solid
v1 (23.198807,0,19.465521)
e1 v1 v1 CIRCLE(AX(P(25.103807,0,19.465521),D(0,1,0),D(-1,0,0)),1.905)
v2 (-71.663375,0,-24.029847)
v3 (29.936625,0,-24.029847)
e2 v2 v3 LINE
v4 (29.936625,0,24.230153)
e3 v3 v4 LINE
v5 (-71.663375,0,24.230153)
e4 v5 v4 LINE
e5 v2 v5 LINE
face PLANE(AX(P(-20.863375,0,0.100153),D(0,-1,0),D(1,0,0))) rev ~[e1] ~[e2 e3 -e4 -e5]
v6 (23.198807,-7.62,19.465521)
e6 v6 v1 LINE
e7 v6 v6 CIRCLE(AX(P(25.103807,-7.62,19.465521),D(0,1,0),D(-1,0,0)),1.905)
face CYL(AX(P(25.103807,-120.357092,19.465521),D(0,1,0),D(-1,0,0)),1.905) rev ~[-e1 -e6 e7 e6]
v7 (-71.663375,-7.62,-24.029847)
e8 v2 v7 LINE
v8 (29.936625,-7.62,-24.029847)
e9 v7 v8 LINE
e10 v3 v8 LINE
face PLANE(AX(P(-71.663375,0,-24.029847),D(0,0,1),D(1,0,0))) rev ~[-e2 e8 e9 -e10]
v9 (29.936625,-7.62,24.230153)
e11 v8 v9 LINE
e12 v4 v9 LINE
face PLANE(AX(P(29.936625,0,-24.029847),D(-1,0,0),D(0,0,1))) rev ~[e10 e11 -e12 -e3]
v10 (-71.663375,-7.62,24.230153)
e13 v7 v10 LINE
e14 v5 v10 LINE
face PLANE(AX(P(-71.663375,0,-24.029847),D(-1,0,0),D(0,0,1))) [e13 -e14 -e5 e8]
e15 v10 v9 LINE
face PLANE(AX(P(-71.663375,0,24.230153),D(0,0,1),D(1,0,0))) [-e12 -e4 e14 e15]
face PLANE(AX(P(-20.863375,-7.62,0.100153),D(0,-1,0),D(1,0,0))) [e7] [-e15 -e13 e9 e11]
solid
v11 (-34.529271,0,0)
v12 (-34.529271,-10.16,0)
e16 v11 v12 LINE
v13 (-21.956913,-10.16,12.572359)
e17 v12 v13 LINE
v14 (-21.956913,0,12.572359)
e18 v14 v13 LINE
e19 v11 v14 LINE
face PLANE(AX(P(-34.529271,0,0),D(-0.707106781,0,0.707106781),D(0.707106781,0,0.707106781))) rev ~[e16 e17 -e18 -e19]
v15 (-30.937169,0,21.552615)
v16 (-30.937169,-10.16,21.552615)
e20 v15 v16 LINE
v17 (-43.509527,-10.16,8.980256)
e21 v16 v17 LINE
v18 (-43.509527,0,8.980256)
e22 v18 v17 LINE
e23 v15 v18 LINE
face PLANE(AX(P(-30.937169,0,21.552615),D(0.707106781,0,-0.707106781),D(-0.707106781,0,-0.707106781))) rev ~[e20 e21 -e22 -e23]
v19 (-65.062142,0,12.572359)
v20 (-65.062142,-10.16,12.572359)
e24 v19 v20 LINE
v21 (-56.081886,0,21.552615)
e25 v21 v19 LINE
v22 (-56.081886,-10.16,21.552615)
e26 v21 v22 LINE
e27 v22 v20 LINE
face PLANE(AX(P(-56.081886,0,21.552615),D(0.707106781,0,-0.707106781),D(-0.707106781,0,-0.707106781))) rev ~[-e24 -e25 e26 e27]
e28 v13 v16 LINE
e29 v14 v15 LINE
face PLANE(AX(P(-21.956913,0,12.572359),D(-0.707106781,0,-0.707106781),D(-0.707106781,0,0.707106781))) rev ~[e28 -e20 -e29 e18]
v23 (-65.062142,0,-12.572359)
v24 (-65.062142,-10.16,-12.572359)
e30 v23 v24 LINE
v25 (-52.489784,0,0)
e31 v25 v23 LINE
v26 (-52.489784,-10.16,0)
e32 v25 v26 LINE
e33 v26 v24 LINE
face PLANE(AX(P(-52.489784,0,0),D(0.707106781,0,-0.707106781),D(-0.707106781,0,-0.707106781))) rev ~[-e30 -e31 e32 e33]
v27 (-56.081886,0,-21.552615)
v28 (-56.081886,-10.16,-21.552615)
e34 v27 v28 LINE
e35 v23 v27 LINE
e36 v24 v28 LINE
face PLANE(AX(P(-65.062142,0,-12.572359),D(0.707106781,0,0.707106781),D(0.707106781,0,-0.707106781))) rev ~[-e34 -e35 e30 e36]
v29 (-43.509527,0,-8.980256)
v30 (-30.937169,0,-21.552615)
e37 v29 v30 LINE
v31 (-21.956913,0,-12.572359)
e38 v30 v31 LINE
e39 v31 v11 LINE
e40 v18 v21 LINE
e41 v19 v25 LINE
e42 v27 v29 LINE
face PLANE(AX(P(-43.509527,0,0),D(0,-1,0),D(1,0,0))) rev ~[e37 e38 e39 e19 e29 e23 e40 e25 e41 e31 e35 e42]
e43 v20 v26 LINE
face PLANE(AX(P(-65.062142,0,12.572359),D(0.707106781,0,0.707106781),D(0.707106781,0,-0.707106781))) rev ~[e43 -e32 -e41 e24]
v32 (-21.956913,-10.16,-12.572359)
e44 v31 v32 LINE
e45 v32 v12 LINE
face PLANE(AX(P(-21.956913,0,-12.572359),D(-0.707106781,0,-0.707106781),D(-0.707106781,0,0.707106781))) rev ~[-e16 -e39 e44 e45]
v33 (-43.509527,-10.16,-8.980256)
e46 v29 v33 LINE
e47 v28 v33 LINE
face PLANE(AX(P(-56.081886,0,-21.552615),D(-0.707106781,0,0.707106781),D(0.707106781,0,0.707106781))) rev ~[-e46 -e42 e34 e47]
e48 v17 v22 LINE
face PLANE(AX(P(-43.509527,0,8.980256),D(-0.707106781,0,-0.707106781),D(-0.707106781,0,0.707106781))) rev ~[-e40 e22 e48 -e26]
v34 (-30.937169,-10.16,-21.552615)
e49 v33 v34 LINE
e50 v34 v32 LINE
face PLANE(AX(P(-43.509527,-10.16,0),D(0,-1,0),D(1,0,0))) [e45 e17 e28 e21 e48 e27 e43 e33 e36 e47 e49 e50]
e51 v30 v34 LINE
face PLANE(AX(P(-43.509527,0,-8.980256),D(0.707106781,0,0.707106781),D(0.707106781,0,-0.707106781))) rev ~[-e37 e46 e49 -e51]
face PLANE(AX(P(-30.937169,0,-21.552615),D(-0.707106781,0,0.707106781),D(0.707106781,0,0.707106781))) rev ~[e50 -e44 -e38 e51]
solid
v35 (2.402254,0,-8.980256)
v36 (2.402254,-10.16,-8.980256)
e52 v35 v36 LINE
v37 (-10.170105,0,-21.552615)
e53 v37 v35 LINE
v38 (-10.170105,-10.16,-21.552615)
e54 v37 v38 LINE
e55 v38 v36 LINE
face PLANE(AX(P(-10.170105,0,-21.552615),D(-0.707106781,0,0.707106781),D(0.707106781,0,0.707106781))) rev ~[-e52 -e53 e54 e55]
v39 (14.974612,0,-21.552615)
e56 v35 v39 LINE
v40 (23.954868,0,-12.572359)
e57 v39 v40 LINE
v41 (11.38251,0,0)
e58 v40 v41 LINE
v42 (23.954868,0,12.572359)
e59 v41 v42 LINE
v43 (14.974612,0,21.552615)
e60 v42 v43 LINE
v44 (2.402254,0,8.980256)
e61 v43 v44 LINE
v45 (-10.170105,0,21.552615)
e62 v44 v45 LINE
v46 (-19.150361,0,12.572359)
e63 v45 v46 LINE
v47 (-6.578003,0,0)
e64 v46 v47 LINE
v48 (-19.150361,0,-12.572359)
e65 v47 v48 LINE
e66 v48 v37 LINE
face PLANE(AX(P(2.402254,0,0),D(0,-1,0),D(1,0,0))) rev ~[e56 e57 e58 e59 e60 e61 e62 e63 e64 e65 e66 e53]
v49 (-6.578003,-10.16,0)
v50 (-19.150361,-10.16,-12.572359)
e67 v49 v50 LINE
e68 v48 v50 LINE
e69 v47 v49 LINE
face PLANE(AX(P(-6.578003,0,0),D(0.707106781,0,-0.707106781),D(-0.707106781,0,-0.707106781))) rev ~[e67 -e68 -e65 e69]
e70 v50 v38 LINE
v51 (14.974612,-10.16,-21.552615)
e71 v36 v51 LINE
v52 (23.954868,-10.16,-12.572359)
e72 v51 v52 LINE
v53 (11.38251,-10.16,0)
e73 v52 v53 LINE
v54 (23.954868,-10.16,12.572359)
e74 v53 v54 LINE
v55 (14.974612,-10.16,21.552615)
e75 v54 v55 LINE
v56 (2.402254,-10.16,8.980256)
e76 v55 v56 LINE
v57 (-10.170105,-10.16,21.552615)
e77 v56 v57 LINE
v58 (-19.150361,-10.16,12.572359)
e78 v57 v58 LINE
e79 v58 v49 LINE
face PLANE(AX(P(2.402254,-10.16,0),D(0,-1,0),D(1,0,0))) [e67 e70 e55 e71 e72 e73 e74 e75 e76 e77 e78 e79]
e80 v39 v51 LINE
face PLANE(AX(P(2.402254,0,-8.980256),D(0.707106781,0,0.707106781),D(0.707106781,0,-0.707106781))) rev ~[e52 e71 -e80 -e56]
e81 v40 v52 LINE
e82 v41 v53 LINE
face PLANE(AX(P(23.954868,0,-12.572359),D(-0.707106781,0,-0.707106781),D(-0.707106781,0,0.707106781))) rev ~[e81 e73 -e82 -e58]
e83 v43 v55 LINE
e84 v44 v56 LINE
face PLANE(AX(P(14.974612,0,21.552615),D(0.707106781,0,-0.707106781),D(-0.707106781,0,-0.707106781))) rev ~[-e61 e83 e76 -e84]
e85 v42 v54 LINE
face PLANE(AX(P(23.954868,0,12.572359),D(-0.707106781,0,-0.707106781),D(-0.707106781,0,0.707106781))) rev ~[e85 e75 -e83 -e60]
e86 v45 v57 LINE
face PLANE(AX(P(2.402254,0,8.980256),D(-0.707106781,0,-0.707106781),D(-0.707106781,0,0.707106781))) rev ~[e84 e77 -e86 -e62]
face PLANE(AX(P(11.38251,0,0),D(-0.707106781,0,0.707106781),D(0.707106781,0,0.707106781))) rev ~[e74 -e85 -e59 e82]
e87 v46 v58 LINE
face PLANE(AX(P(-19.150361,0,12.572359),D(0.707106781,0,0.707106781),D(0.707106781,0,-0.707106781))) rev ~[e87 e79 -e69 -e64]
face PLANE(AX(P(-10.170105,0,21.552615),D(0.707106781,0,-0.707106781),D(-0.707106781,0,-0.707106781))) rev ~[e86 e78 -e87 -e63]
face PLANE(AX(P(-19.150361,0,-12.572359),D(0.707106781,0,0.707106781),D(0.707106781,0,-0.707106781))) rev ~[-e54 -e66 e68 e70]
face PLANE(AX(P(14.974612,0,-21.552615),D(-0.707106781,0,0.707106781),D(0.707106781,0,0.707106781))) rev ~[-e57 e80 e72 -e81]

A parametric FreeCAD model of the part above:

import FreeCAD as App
import Part
import Sketcher
Q = App.Units.Quantity

doc = App.newDocument("Part")
body = doc.addObject("PartDesign::Body", "Body")

# Sketch on XZ plane
sketch1 = body.newObject("Sketcher::SketchObject", "Sketch")
sketch1.AttachmentSupport = (doc.getObject("XZ_Plane"), [""])
sketch1.MapMode = "FlatFace"
sketch1.addGeometry([
    Part.LineSegment(App.Vector(-65, 13, 0), App.Vector(-52, 0, 0)),  # 0
    Part.LineSegment(App.Vector(-52, 0, 0), App.Vector(-65, -13, 0)),  # 1
    Part.LineSegment(App.Vector(-65, -13, 0), App.Vector(-56, -22, 0)),  # 2
    Part.LineSegment(App.Vector(-56, -22, 0), App.Vector(-44, -9, 0)),  # 3
    Part.LineSegment(App.Vector(-44, -9, 0), App.Vector(-31, -22, 0)),  # 4
    Part.LineSegment(App.Vector(-31, -22, 0), App.Vector(-22, -13, 0)),  # 5
    Part.LineSegment(App.Vector(-22, -13, 0), App.Vector(-35, 0, 0)),  # 6
    Part.LineSegment(App.Vector(-35, 0, 0), App.Vector(-22, 13, 0)),  # 7
    Part.LineSegment(App.Vector(-22, 13, 0), App.Vector(-31, 22, 0)),  # 8
    Part.LineSegment(App.Vector(-31, 22, 0), App.Vector(-44, 9, 0)),  # 9
    Part.LineSegment(App.Vector(-44, 9, 0), App.Vector(-56, 22, 0)),  # 10
    Part.LineSegment(App.Vector(-56, 22, 0), App.Vector(-65, 13, 0)),  # 11
], False)
sketch1.addConstraint([
    Sketcher.Constraint("Coincident", 0, 2, 1, 1),
    Sketcher.Constraint("Coincident", 1, 2, 2, 1),
    Sketcher.Constraint("Coincident", 2, 2, 3, 1),
    Sketcher.Constraint("Coincident", 3, 2, 4, 1),
    Sketcher.Constraint("Coincident", 4, 2, 5, 1),
    Sketcher.Constraint("Coincident", 5, 2, 6, 1),
    Sketcher.Constraint("Coincident", 6, 2, 7, 1),
    Sketcher.Constraint("Coincident", 7, 2, 8, 1),
    Sketcher.Constraint("Coincident", 8, 2, 9, 1),
    Sketcher.Constraint("Coincident", 9, 2, 10, 1),
    Sketcher.Constraint("Coincident", 10, 2, 11, 1),
    Sketcher.Constraint("Coincident", 11, 2, 0, 1),
    Sketcher.Constraint("Symmetric", 5, 2, 7, 2, -1),
    Sketcher.Constraint("Symmetric", 4, 2, 8, 2, -1),
    Sketcher.Constraint("Symmetric", 3, 2, 9, 2, -1),
    Sketcher.Constraint("Symmetric", 2, 2, 10, 2, -1),
    Sketcher.Constraint("Symmetric", 1, 2, 11, 2, -1),
    Sketcher.Constraint("PointOnObject", 0, 2, -1),
    Sketcher.Constraint("PointOnObject", 6, 2, -1),
    Sketcher.Constraint("Perpendicular", 0, 1),
    Sketcher.Constraint("Perpendicular", 1, 2),
    Sketcher.Constraint("Perpendicular", 2, 3),
    Sketcher.Constraint("Perpendicular", 3, 4),
    Sketcher.Constraint("Perpendicular", 4, 5),
    Sketcher.Constraint("Perpendicular", 5, 6),
    Sketcher.Constraint("Horizontal", 2, 2, 4, 2),
    Sketcher.Constraint("Horizontal", 1, 2, 5, 2),
    Sketcher.Constraint("Equal", 1, 3),
    Sketcher.Constraint("Distance", 0, Q("0.7 in")),
    Sketcher.Constraint("Distance", 2, Q("0.5 in")),
    Sketcher.Constraint("DistanceX", 4, 2, -1, 1, Q("30.937169 mm")),
])
pad1 = body.newObject("PartDesign::Pad", "Pad")
pad1.Profile = sketch1
pad1.Length = Q("0.4 in")
body2 = doc.addObject("PartDesign::Body", "Body001")

# Sketch on XZ plane
sketch2 = body2.newObject("Sketcher::SketchObject", "Sketch001")
sketch2.AttachmentSupport = (doc.getObject("XZ_Plane001"), [""])
sketch2.MapMode = "FlatFace"
sketch2.addGeometry([
    Part.LineSegment(App.Vector(-72, 24, 0), App.Vector(-72, -24, 0)),
    Part.LineSegment(App.Vector(-72, -24, 0), App.Vector(30, -24, 0)),
    Part.LineSegment(App.Vector(30, -24, 0), App.Vector(30, 24, 0)),
    Part.LineSegment(App.Vector(30, 24, 0), App.Vector(-72, 24, 0)),
], False)
sketch2.addConstraint([
    Sketcher.Constraint("Coincident", 0, 2, 1, 1),
    Sketcher.Constraint("Coincident", 1, 2, 2, 1),
    Sketcher.Constraint("Coincident", 2, 2, 3, 1),
    Sketcher.Constraint("Coincident", 3, 2, 0, 1),
    Sketcher.Constraint("Vertical", 0),
    Sketcher.Constraint("Horizontal", 1),
    Sketcher.Constraint("Vertical", 2),
    Sketcher.Constraint("Horizontal", 3),
    Sketcher.Constraint("DistanceX", 1, 1, 1, 2, Q("4 in")),
    Sketcher.Constraint("DistanceY", 0, 2, 0, 1, Q("1.9 in")),
    Sketcher.Constraint("DistanceX", 0, 2, -1, 1, Q("71.663375 mm")),
    Sketcher.Constraint("DistanceY", 0, 2, -1, 1, Q("24.029847 mm")),
])
pad2 = body2.newObject("PartDesign::Pad", "Pad001")
pad2.Profile = sketch2
pad2.Length = Q("0.3 in")

# Sketch on XZ plane
sketch3 = body2.newObject("Sketcher::SketchObject", "Sketch002")
sketch3.AttachmentSupport = (doc.getObject("XZ_Plane001"), [""])
sketch3.MapMode = "FlatFace"
sketch3.AttachmentOffset = App.Placement(App.Vector(0, 0, 0.3 * 25.4), App.Rotation())
sketch3.addGeometry(Part.Circle(App.Vector(25.1, 19.5, 0), App.Vector(0, 0, 1), 1.9), False)
sketch3.addConstraint([
    Sketcher.Constraint("Diameter", 0, Q("0.15 in")),
    Sketcher.Constraint("DistanceY", -1, 1, 0, 3, Q("19.465521 mm")),
    Sketcher.Constraint("DistanceX", -1, 1, 0, 3, Q("25.103807 mm")),
])
doc.recompute()
hole = body2.newObject("PartDesign::Hole", "Hole")
hole.Profile = sketch3
hole.ThreadType = "None"
hole.Diameter = Q("0.15 in")
hole.DepthType = "ThroughAll"
body3 = doc.addObject("PartDesign::Body", "Body002")

# Sketch on XZ plane
sketch4 = body3.newObject("Sketcher::SketchObject", "Sketch003")
sketch4.AttachmentSupport = (doc.getObject("XZ_Plane002"), [""])
sketch4.MapMode = "FlatFace"
sketch4.addGeometry([
    Part.LineSegment(App.Vector(-19, 13, 0), App.Vector(-7, 0, 0)),  # 0
    Part.LineSegment(App.Vector(-7, 0, 0), App.Vector(-19, -13, 0)),  # 1
    Part.LineSegment(App.Vector(-19, -13, 0), App.Vector(-10, -22, 0)),  # 2
    Part.LineSegment(App.Vector(-10, -22, 0), App.Vector(2, -9, 0)),  # 3
    Part.LineSegment(App.Vector(2, -9, 0), App.Vector(15, -22, 0)),  # 4
    Part.LineSegment(App.Vector(15, -22, 0), App.Vector(24, -13, 0)),  # 5
    Part.LineSegment(App.Vector(24, -13, 0), App.Vector(11, 0, 0)),  # 6
    Part.LineSegment(App.Vector(11, 0, 0), App.Vector(24, 13, 0)),  # 7
    Part.LineSegment(App.Vector(24, 13, 0), App.Vector(15, 22, 0)),  # 8
    Part.LineSegment(App.Vector(15, 22, 0), App.Vector(2, 9, 0)),  # 9
    Part.LineSegment(App.Vector(2, 9, 0), App.Vector(-10, 22, 0)),  # 10
    Part.LineSegment(App.Vector(-10, 22, 0), App.Vector(-19, 13, 0)),  # 11
], False)
sketch4.addConstraint([
    Sketcher.Constraint("Coincident", 0, 2, 1, 1),
    Sketcher.Constraint("Coincident", 1, 2, 2, 1),
    Sketcher.Constraint("Coincident", 2, 2, 3, 1),
    Sketcher.Constraint("Coincident", 3, 2, 4, 1),
    Sketcher.Constraint("Coincident", 4, 2, 5, 1),
    Sketcher.Constraint("Coincident", 5, 2, 6, 1),
    Sketcher.Constraint("Coincident", 6, 2, 7, 1),
    Sketcher.Constraint("Coincident", 7, 2, 8, 1),
    Sketcher.Constraint("Coincident", 8, 2, 9, 1),
    Sketcher.Constraint("Coincident", 9, 2, 10, 1),
    Sketcher.Constraint("Coincident", 10, 2, 11, 1),
    Sketcher.Constraint("Coincident", 11, 2, 0, 1),
    Sketcher.Constraint("Symmetric", 5, 2, 7, 2, -1),
    Sketcher.Constraint("Symmetric", 4, 2, 8, 2, -1),
    Sketcher.Constraint("Symmetric", 3, 2, 9, 2, -1),
    Sketcher.Constraint("Symmetric", 2, 2, 10, 2, -1),
    Sketcher.Constraint("Symmetric", 1, 2, 11, 2, -1),
    Sketcher.Constraint("PointOnObject", 0, 2, -1),
    Sketcher.Constraint("PointOnObject", 6, 2, -1),
    Sketcher.Constraint("Perpendicular", 0, 1),
    Sketcher.Constraint("Perpendicular", 1, 2),
    Sketcher.Constraint("Perpendicular", 2, 3),
    Sketcher.Constraint("Perpendicular", 3, 4),
    Sketcher.Constraint("Perpendicular", 4, 5),
    Sketcher.Constraint("Perpendicular", 5, 6),
    Sketcher.Constraint("Horizontal", 2, 2, 4, 2),
    Sketcher.Constraint("Horizontal", 1, 2, 5, 2),
    Sketcher.Constraint("Equal", 1, 3),
    Sketcher.Constraint("Distance", 0, Q("0.7 in")),
    Sketcher.Constraint("Distance", 2, Q("0.5 in")),
    Sketcher.Constraint("DistanceX", 1, 2, -1, 1, Q("19.150361 mm")),
])
pad3 = body3.newObject("PartDesign::Pad", "Pad002")
pad3.Profile = sketch4
pad3.Length = Q("0.4 in")

doc.recompute()
